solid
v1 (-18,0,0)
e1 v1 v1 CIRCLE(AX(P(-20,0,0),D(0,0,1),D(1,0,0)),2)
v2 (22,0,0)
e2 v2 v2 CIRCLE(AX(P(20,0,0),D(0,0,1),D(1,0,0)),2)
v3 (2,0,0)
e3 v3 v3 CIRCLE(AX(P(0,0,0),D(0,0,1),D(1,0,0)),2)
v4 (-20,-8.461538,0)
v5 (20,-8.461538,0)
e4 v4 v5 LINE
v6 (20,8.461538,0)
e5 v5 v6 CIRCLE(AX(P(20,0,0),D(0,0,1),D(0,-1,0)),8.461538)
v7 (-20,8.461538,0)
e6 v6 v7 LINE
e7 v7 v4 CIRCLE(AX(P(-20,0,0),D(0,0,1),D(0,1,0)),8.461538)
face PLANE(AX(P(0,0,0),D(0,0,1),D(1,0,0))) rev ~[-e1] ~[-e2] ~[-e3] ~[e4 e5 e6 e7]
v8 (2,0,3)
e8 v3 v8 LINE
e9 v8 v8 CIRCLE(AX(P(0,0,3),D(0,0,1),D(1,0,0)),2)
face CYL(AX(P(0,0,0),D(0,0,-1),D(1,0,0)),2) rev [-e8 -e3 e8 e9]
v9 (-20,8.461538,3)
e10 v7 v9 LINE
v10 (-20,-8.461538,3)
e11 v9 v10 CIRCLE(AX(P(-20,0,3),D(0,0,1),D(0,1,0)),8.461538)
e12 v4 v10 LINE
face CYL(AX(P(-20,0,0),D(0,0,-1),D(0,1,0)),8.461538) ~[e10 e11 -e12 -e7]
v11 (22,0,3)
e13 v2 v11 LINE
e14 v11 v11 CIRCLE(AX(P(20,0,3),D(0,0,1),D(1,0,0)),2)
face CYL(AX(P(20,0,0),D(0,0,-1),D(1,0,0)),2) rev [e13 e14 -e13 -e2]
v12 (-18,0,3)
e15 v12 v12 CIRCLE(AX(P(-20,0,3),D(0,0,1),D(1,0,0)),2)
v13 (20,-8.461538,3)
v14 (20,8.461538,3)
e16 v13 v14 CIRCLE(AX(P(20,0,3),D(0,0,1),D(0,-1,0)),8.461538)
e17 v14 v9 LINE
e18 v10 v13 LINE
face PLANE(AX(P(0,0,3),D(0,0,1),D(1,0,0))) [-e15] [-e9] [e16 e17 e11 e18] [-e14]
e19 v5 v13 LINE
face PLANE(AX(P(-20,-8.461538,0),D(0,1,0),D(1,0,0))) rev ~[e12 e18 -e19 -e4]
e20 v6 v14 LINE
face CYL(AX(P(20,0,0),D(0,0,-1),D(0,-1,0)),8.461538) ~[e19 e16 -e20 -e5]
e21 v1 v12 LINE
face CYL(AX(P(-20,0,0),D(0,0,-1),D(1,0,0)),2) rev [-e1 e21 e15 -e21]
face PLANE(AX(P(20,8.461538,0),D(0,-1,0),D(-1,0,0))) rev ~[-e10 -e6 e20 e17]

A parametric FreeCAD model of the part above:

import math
import FreeCAD as App
import Part
import Sketcher
Q = App.Units.Quantity

doc = App.newDocument("Part")
body = doc.addObject("PartDesign::Body", "Body")

# Sketch on XY plane
sketch1 = body.newObject("Sketcher::SketchObject", "Sketch")
sketch1.AttachmentSupport = (doc.getObject("XY_Plane"), [""])
sketch1.MapMode = "FlatFace"
sketch1.addGeometry([
    Part.LineSegment(App.Vector(20, 8.461538, 0), App.Vector(-20, 8.461538, 0)),  # 0
    Part.ArcOfCircle(Part.Circle(App.Vector(-20, 0, 0), App.Vector(0, 0, 1), 8.461538), math.radians(90), math.radians(270)),  # 1
    Part.LineSegment(App.Vector(-20, -8.461538, 0), App.Vector(20, -8.461538, 0)),  # 2
    Part.ArcOfCircle(Part.Circle(App.Vector(20, 0, 0), App.Vector(0, 0, 1), 8.461538), math.radians(-90), math.radians(90)),  # 3
    Part.Circle(App.Vector(-20, 0, 0), App.Vector(0, 0, 1), 2),  # 4
    Part.Circle(App.Vector(0, 0, 0), App.Vector(0, 0, 1), 2),  # 5
    Part.Circle(App.Vector(20, 0, 0), App.Vector(0, 0, 1), 2),  # 6
], False)
sketch1.addConstraint([
    Sketcher.Constraint("Tangent", 0, 2, 1, 1),
    Sketcher.Constraint("Tangent", 1, 2, 2, 1),
    Sketcher.Constraint("Tangent", 2, 2, 3, 1),
    Sketcher.Constraint("Tangent", 3, 2, 0, 1),
    Sketcher.Constraint("Horizontal", 0),
    Sketcher.Constraint("Horizontal", 2),
    Sketcher.Constraint("Coincident", 5, 3, -1, 1),
    Sketcher.Constraint("Coincident", 4, 3, 1, 3),
    Sketcher.Constraint("Coincident", 6, 3, 3, 3),
    Sketcher.Constraint("Equal", 4, 5),
    Sketcher.Constraint("Equal", 5, 6),
    Sketcher.Constraint("Symmetric", 1, 3, 3, 3, -1, 1),
    Sketcher.Constraint("Diameter", 4, Q("4 mm")),
    Sketcher.Constraint("DistanceX", 0, 2, 0, 1, Q("40 mm")),
    Sketcher.Constraint("Radius", 1, Q("8.461538 mm")),
])
pad1 = body.newObject("PartDesign::Pad", "Pad")
pad1.Profile = sketch1
pad1.Length = 3

doc.recompute()
